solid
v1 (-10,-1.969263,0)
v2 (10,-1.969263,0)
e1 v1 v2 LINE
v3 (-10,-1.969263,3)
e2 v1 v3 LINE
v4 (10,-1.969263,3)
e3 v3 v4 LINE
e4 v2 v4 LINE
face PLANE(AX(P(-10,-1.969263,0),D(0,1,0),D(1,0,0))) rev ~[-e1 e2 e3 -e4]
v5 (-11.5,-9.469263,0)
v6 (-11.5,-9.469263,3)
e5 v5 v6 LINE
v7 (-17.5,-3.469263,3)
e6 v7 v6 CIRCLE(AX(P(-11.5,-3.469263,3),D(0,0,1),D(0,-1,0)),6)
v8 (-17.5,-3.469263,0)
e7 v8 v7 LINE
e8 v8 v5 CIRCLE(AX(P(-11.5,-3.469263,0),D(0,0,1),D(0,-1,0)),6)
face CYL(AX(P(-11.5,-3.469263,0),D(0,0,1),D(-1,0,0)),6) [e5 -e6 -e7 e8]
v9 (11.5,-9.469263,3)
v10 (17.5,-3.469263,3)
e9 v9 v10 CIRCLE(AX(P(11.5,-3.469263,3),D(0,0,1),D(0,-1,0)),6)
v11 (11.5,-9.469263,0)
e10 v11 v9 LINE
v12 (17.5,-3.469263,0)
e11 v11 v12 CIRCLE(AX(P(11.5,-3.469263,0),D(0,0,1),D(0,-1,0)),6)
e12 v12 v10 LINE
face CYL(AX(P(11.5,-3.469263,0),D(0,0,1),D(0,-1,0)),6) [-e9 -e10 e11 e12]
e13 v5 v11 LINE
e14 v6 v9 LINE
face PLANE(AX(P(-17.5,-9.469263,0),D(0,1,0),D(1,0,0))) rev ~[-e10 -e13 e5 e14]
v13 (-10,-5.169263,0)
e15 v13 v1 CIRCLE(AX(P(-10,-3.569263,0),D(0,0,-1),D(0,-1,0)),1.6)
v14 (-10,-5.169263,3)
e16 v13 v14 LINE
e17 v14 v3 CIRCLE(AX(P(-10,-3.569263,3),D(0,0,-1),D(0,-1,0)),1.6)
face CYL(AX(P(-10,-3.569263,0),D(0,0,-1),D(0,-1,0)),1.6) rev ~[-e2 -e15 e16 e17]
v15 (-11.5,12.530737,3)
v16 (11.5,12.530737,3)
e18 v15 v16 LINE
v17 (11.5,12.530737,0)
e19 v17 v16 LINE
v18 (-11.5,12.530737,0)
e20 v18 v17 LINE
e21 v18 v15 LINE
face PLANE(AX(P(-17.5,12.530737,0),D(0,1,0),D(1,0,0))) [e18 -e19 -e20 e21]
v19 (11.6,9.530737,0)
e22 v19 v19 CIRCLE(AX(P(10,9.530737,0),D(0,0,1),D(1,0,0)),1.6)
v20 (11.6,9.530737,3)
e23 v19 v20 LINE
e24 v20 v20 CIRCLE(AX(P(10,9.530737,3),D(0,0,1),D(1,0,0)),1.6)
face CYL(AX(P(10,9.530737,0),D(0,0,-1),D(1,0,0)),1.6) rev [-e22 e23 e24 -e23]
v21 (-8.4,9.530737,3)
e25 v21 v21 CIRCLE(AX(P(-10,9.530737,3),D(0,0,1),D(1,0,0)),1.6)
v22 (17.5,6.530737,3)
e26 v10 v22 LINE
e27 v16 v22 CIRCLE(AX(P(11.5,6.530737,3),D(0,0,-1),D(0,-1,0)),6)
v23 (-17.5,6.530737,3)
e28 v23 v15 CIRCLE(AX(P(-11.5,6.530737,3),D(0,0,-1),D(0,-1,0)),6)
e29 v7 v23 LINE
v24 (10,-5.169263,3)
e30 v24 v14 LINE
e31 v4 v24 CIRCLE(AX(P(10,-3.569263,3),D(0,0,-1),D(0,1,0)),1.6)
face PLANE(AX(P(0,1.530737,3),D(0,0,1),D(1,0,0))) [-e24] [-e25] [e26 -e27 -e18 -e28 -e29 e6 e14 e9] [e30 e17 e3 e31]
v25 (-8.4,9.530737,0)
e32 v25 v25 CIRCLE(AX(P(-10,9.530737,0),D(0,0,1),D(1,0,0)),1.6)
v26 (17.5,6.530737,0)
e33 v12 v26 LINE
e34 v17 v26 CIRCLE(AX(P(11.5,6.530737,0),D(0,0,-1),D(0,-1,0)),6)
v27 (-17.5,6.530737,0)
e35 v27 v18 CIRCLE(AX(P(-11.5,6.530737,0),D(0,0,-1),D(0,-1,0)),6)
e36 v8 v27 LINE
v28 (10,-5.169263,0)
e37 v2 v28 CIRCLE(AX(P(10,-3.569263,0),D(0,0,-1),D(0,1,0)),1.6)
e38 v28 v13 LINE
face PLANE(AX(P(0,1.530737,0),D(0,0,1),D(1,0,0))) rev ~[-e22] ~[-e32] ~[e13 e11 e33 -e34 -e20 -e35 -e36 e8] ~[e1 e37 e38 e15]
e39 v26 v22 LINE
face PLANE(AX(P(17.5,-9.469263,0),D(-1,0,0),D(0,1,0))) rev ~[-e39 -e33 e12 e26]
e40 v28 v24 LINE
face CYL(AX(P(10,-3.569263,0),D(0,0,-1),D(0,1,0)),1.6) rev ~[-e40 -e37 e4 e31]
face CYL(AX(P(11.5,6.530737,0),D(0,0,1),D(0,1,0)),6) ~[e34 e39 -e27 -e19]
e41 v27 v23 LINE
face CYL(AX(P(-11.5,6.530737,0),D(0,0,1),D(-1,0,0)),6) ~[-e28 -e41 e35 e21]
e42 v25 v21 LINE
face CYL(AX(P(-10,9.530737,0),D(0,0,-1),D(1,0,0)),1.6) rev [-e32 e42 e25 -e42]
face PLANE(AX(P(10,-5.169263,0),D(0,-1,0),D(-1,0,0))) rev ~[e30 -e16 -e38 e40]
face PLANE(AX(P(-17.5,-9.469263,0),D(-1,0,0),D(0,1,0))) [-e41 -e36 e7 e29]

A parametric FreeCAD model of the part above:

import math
import FreeCAD as App
import Part
import Sketcher

V = App.Vector
Q = App.Units.Quantity


def edges_at(feature, points):
    """Names of the edges that pass closest to the given points."""
    edges = feature.Shape.Edges
    near = lambda p: min(range(len(edges)), key=lambda i: edges[i].distToShape(Part.Vertex(*p))[0])
    return sorted({f"Edge{near(p) + 1}" for p in points})

doc = App.newDocument("Part")
params = doc.addObject("Spreadsheet::Sheet", "Params")
for row, (alias, value) in enumerate([
    ("sketch1_diameter", "3.2 mm"),
    ("sketch1_width", "35 mm"),
    ("sketch1_width2", "20 mm"),
    ("sketch1_height", "22 mm"),
    ("pad1_length", "3 mm"),
    ("fillet_radius", "6 mm"),
], start=1):
    params.set(f"A{row}", alias)
    params.set(f"B{row}", "=" + value)
    params.setAlias(f"B{row}", alias)

body = doc.addObject("PartDesign::Body", "Body")

# Sketch on XY plane
sketch1 = doc.addObject("Sketcher::SketchObject", "Sketch")
body.addObject(sketch1)
sketch1.AttachmentSupport = (doc.XY_Plane, [""])
sketch1.MapMode = "FlatFace"
sketch1.addGeometry([
    Part.LineSegment(V(-17.5, 12.5, 0), V(-17.5, -9.5, 0)),  # 0
    Part.LineSegment(V(-17.5, -9.5, 0), V(17.5, -9.5, 0)),  # 1
    Part.LineSegment(V(17.5, -9.5, 0), V(17.5, 12.5, 0)),  # 2
    Part.LineSegment(V(17.5, 12.5, 0), V(-17.5, 12.5, 0)),  # 3
    Part.LineSegment(V(10, -5.2, 0), V(-10, -5.2, 0)),  # 4
    Part.ArcOfCircle(Part.Circle(V(-10, -3.6, 0), V(0, 0, 1), 1.6), math.radians(90), math.radians(270)),  # 5
    Part.LineSegment(V(-10, -2, 0), V(10, -2, 0)),  # 6
    Part.ArcOfCircle(Part.Circle(V(10, -3.6, 0), V(0, 0, 1), 1.6), math.radians(-90), math.radians(90)),  # 7
    Part.Circle(V(-10, 9.5, 0), V(0, 0, 1), 1.6),  # 8
    Part.Circle(V(10, 9.5, 0), V(0, 0, 1), 1.6),  # 9
], False)
sketch1.addConstraint([
    Sketcher.Constraint("Coincident", 0, 2, 1, 1),
    Sketcher.Constraint("Coincident", 1, 2, 2, 1),
    Sketcher.Constraint("Coincident", 2, 2, 3, 1),
    Sketcher.Constraint("Coincident", 3, 2, 0, 1),
    Sketcher.Constraint("Tangent", 4, 2, 5, 2),
    Sketcher.Constraint("Tangent", 5, 1, 6, 1),
    Sketcher.Constraint("Tangent", 6, 2, 7, 2),
    Sketcher.Constraint("Tangent", 7, 1, 4, 1),
    Sketcher.Constraint("Vertical", 0),
    Sketcher.Constraint("Horizontal", 1),
    Sketcher.Constraint("Vertical", 2),
    Sketcher.Constraint("Horizontal", 3),
    Sketcher.Constraint("Horizontal", 4),
    Sketcher.Constraint("Horizontal", 6),
    Sketcher.Constraint("Equal", 7, 8),
    Sketcher.Constraint("Equal", 8, 9),
    Sketcher.Constraint("Symmetric", 8, 3, 9, 3, -2),
    Sketcher.Constraint("Vertical", 5, 3, 8, 3),
    Sketcher.Constraint("Vertical", 7, 3, 9, 3),
    Sketcher.Constraint("Diameter", 8, Q("3.2 mm")),
    Sketcher.Constraint("DistanceX", 1, 1, 1, 2, Q("35 mm")),
    Sketcher.Constraint("DistanceX", 4, 2, 4, 1, Q("20 mm")),
    Sketcher.Constraint("DistanceY", 0, 2, 0, 1, Q("22 mm")),
    Sketcher.Constraint("DistanceY", 0, 2, 8, 3, Q("19 mm")),
    Sketcher.Constraint("DistanceX", 0, 2, -1, 1, Q("17.5 mm")),
    Sketcher.Constraint("DistanceY", 5, 3, 8, 3, Q("13.1 mm")),
    Sketcher.Constraint("DistanceY", 5, 3, -1, 1, Q("3.569263 mm")),
])
sketch1.setExpression("Constraints[19]", "Params.sketch1_diameter")
sketch1.setExpression("Constraints[20]", "Params.sketch1_width")
sketch1.setExpression("Constraints[21]", "Params.sketch1_width2")
sketch1.setExpression("Constraints[22]", "Params.sketch1_height")
pad1 = doc.addObject("PartDesign::Pad", "Pad")
body.addObject(pad1)
pad1.Profile = sketch1
pad1.setExpression("Length", "Params.pad1_length")
doc.recompute()

fillet = doc.addObject("PartDesign::Fillet", "Fillet")
body.addObject(fillet)
fillet.Base = (pad1, edges_at(pad1, [
    (-17.5, -9.469, 1.5),
    (-17.5, 12.531, 1.5),
    (17.5, 12.531, 1.5),
    (17.5, -9.469, 1.5),
]))
fillet.setExpression("Radius", "Params.fillet_radius")

doc.recompute()
